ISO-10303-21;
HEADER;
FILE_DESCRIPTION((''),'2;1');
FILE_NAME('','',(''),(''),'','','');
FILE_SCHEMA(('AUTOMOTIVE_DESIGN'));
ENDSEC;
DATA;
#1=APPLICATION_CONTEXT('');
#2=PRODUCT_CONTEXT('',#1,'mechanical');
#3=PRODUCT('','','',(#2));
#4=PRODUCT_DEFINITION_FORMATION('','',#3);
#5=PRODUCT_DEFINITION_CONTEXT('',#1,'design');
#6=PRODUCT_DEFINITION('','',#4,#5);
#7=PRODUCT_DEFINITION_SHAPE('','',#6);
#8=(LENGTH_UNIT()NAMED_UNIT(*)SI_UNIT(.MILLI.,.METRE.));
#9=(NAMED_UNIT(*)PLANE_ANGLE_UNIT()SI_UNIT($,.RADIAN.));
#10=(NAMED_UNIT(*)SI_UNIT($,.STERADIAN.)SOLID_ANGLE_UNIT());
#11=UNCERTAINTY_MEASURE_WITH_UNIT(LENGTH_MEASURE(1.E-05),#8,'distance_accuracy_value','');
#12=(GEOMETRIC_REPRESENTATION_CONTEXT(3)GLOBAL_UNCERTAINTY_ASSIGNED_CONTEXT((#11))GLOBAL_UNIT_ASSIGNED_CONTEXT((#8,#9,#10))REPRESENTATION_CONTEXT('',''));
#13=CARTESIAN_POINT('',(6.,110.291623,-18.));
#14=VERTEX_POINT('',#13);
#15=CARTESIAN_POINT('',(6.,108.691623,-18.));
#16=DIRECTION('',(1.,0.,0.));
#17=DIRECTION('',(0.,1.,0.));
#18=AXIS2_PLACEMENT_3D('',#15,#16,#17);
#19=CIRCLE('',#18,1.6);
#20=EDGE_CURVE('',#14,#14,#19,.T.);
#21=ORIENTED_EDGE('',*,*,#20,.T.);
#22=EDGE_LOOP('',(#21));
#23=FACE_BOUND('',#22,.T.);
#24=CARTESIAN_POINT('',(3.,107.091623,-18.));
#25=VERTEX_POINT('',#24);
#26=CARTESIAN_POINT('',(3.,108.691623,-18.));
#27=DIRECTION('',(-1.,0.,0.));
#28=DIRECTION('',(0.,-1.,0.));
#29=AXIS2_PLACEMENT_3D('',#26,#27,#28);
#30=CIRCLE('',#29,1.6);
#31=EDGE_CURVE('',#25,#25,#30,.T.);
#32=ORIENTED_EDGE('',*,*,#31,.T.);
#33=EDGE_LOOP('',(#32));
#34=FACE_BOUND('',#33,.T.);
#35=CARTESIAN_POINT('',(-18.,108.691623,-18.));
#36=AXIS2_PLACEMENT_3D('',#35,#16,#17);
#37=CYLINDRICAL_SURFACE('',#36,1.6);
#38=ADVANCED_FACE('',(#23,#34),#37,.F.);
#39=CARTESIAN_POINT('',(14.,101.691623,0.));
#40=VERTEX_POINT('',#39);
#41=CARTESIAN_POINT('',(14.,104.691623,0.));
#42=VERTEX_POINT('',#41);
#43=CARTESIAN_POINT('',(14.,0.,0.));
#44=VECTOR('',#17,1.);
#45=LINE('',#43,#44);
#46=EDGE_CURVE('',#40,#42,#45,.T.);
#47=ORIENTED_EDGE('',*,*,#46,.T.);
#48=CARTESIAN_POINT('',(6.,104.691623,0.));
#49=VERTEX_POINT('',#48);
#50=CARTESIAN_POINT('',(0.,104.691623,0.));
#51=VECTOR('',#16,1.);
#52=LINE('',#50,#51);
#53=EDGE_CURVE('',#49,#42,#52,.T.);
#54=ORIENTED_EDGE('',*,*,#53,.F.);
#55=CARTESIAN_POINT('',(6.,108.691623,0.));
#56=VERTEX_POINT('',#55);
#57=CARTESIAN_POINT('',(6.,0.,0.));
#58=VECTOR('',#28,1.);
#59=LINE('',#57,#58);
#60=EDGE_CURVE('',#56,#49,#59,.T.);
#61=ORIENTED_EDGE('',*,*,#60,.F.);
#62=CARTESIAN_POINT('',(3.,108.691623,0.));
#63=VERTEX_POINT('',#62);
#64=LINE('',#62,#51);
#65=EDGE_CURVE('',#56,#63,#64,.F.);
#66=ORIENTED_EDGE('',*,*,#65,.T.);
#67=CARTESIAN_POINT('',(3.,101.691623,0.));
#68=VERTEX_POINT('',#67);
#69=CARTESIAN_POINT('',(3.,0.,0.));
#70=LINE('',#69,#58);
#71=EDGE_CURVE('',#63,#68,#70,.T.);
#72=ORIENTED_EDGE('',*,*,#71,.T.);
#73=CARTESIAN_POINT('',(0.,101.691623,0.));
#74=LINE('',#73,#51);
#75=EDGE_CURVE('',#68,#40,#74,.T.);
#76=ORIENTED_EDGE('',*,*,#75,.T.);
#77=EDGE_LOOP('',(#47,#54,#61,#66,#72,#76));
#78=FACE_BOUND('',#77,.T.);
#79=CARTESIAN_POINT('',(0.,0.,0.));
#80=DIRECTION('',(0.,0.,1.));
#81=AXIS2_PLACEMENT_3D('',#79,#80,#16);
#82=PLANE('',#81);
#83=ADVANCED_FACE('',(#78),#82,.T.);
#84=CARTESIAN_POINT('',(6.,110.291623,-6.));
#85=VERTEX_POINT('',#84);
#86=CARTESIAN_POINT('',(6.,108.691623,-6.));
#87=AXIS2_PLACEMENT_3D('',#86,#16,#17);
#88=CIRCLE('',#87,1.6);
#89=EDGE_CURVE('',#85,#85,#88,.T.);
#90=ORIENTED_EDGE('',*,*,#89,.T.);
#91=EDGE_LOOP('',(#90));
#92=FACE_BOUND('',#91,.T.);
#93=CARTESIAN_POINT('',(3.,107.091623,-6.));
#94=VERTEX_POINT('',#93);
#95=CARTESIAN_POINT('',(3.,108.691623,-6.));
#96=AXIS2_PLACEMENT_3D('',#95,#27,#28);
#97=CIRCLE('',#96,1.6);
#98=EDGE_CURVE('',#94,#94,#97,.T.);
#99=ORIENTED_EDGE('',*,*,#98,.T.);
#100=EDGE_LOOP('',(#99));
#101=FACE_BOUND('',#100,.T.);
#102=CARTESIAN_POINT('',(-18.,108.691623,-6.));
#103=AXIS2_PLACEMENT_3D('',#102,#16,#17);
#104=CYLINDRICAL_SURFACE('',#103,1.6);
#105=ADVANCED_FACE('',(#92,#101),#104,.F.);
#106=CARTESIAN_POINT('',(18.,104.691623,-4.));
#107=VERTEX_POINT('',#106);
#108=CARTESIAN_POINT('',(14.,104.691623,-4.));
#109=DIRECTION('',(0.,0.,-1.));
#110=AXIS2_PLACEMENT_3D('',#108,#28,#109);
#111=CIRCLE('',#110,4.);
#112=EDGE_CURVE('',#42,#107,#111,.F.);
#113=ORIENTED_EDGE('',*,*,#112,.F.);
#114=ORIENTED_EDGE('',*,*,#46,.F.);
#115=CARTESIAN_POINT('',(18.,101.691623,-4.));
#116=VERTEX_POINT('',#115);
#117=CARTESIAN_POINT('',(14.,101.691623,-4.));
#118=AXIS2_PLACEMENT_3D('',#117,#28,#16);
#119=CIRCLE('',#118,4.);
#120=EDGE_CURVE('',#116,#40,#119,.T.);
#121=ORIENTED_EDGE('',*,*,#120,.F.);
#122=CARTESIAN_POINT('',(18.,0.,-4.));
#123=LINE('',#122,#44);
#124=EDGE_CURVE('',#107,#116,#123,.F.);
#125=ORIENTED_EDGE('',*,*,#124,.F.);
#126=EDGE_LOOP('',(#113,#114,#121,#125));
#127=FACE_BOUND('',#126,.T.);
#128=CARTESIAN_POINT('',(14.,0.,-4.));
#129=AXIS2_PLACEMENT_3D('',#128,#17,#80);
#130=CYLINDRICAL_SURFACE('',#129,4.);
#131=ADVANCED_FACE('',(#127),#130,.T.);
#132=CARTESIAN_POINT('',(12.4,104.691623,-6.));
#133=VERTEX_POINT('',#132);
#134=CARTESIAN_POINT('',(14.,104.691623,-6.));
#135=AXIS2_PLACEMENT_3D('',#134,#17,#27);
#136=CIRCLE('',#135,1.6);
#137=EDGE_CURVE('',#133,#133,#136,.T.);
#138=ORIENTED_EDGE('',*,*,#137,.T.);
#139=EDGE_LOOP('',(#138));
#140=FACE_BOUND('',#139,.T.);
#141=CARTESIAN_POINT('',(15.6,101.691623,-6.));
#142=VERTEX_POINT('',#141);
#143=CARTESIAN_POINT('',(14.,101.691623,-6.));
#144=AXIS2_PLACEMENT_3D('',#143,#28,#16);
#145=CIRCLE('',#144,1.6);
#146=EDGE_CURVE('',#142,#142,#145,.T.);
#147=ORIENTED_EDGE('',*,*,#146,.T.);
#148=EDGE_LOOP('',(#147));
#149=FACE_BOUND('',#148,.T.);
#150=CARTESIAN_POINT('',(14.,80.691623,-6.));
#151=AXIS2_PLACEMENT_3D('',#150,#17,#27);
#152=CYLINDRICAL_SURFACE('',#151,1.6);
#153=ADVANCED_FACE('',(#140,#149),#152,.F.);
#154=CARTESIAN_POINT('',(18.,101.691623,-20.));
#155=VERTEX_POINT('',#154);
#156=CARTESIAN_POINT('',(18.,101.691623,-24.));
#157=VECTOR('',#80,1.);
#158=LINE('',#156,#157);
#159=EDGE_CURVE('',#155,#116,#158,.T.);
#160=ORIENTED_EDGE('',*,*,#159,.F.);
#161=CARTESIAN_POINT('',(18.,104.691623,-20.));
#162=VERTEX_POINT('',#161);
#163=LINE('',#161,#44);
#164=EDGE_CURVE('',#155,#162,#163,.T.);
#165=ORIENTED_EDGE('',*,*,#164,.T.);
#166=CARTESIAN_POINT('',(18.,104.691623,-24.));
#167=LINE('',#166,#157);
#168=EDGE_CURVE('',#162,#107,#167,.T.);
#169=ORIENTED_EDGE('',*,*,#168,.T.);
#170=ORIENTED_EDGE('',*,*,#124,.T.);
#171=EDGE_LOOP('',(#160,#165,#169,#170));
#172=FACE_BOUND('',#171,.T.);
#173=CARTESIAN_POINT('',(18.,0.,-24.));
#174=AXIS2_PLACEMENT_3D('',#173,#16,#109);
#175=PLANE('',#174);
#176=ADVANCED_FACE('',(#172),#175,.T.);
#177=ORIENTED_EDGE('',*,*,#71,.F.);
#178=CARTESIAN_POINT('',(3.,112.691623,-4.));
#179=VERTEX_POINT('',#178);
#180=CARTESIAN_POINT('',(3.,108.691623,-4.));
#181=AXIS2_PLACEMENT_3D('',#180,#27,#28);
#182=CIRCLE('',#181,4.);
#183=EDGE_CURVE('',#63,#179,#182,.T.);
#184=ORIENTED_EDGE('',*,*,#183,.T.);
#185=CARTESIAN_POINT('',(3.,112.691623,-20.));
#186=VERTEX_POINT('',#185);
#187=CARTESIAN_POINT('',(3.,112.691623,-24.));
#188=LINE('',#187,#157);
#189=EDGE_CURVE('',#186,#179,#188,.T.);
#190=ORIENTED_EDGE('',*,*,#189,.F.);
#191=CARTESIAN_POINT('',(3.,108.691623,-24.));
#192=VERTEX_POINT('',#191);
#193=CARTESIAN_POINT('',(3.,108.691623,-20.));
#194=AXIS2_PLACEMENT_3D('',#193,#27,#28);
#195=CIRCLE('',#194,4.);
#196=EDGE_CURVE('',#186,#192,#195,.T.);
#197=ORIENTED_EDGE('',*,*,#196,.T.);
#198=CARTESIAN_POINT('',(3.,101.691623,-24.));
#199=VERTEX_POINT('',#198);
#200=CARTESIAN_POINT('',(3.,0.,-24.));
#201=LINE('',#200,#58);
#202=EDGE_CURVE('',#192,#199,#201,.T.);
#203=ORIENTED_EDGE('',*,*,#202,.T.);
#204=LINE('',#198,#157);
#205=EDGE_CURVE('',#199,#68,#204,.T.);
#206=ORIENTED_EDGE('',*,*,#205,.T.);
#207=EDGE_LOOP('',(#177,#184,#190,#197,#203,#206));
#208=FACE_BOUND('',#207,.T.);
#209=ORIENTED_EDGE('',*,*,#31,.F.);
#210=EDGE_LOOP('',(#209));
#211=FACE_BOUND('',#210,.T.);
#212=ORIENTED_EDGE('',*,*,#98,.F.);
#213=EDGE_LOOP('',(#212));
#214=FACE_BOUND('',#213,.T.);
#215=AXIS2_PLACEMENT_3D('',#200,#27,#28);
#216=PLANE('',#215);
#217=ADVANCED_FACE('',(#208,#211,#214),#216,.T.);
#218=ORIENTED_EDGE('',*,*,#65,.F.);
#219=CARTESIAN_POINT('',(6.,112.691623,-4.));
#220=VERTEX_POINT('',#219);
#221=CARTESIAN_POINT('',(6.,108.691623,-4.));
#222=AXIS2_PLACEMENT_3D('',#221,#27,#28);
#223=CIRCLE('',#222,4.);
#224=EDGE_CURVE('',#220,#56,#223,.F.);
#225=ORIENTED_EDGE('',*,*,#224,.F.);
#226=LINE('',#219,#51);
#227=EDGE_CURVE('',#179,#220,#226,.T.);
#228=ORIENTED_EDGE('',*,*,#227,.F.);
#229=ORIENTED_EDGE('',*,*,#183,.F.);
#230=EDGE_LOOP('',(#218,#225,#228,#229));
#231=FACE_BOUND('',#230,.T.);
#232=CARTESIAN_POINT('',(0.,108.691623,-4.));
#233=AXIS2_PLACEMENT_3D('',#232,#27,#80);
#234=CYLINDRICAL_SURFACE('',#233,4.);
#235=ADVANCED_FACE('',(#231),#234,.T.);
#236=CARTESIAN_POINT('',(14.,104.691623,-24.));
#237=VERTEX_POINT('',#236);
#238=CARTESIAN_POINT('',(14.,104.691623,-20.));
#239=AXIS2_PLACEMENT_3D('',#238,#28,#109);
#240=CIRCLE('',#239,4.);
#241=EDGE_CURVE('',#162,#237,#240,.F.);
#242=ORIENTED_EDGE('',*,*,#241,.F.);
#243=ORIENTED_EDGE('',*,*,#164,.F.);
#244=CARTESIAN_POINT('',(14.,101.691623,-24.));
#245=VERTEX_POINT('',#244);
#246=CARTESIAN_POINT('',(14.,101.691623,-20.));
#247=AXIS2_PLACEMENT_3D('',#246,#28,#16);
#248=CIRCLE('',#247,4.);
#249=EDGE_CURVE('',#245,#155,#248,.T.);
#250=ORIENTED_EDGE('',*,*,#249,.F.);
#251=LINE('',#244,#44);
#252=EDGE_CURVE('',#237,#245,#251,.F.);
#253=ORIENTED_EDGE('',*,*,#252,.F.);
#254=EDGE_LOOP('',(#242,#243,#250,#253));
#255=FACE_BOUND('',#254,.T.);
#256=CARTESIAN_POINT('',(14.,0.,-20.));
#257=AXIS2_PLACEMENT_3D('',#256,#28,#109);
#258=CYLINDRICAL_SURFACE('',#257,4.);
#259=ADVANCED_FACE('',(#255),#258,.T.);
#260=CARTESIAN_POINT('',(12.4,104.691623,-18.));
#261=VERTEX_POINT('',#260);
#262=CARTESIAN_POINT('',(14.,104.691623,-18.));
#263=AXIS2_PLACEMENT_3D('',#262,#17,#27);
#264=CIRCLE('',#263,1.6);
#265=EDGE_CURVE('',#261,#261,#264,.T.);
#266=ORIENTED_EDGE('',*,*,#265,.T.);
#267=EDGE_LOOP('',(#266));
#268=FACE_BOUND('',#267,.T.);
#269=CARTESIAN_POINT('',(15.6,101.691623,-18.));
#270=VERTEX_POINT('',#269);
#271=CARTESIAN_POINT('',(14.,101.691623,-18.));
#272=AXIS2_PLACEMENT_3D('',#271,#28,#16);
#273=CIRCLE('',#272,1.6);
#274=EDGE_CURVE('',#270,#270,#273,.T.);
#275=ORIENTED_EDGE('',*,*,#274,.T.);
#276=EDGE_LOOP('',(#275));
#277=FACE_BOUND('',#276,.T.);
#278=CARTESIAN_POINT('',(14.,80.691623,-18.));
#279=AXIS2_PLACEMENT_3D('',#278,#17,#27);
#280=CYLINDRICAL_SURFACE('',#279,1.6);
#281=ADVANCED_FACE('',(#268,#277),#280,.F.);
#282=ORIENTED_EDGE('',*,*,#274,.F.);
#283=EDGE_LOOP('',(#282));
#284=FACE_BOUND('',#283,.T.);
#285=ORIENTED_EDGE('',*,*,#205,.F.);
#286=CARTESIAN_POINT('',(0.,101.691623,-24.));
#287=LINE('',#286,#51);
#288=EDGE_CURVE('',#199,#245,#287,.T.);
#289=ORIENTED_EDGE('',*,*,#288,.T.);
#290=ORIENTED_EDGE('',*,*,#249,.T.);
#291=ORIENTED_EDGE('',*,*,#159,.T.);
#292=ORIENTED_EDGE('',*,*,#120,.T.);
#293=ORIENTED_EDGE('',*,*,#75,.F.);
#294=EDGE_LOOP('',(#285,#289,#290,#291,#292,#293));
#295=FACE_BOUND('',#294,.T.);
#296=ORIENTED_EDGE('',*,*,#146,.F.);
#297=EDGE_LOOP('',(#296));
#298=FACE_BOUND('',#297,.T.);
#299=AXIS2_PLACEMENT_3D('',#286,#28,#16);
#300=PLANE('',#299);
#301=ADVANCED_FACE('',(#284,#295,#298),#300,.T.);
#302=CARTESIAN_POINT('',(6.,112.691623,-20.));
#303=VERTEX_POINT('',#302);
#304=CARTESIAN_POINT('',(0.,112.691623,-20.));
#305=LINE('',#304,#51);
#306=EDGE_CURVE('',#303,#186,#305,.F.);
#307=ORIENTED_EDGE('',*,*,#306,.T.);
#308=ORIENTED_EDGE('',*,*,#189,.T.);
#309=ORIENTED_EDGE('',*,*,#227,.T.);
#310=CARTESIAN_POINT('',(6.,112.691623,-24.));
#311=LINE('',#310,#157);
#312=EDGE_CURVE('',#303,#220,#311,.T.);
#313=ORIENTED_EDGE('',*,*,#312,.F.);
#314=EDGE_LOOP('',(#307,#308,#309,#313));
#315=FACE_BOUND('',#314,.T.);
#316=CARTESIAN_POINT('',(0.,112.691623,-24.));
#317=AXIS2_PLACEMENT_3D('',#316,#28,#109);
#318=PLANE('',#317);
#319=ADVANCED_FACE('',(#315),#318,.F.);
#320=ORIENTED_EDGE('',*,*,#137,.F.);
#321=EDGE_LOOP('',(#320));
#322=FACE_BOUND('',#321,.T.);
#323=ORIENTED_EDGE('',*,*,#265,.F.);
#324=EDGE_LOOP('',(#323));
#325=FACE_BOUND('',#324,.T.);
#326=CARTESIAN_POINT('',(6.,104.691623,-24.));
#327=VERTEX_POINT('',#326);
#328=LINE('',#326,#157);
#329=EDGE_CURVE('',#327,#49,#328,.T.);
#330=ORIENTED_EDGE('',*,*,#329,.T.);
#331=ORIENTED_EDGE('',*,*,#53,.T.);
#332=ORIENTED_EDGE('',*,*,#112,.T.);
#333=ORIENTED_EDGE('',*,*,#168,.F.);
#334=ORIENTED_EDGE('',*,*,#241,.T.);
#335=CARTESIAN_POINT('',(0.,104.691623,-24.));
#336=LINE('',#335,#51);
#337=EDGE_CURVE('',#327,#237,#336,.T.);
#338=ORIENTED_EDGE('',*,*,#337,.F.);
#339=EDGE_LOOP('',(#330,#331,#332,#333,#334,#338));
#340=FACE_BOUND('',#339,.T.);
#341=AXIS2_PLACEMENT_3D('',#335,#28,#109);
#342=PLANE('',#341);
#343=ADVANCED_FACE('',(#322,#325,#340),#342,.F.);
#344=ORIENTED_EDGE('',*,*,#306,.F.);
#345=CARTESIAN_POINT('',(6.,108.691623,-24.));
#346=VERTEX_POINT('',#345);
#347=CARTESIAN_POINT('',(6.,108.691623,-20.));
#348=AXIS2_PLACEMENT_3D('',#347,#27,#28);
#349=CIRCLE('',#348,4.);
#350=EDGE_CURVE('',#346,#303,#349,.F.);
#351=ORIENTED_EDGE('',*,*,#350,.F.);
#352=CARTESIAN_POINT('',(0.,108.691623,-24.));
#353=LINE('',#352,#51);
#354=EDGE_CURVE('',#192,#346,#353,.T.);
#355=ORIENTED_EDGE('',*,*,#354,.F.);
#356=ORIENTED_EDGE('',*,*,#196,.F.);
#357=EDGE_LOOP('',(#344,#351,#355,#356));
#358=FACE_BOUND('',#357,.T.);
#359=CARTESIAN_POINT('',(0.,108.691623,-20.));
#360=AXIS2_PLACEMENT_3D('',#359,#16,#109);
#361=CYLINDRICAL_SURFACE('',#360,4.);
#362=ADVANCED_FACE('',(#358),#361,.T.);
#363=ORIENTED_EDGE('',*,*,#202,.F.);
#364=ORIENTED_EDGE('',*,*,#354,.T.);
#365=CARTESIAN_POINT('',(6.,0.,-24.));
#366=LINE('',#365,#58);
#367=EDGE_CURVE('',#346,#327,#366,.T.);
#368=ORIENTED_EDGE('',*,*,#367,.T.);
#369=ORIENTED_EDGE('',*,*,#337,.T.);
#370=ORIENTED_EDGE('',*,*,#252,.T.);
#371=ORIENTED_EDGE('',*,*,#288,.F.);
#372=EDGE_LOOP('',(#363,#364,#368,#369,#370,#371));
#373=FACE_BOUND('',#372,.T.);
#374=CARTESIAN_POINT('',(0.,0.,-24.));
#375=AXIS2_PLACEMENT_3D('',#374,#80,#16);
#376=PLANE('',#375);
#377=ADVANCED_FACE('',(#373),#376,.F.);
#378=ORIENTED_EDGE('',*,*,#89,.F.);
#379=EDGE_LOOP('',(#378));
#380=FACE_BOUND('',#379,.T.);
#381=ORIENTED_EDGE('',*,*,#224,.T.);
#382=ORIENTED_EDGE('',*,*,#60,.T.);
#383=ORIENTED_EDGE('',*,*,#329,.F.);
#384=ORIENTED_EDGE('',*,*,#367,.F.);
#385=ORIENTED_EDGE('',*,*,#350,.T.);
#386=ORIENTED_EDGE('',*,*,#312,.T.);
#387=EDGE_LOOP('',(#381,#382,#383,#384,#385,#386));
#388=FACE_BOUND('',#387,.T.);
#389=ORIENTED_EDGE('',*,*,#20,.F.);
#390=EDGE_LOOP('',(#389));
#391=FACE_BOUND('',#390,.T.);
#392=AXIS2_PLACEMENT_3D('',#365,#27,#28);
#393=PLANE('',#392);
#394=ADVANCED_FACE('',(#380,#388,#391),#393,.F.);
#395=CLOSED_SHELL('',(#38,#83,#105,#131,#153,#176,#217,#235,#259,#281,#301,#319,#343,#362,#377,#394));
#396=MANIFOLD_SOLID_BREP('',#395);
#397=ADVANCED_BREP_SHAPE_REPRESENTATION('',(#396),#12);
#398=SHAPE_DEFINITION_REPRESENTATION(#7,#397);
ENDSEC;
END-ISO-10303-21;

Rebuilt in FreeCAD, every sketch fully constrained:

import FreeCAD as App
import Part
import Sketcher

V = App.Vector
Q = App.Units.Quantity


def edges_at(feature, points):
    """Names of the edges that pass closest to the given points."""
    edges = feature.Shape.Edges
    near = lambda p: min(range(len(edges)), key=lambda i: edges[i].distToShape(Part.Vertex(*p))[0])
    return sorted({f"Edge{near(p) + 1}" for p in points})


def add_polygon(sketch, points):
    """Adds a closed chain of lines whose ends are joined by coincident constraints."""
    first, n = sketch.GeometryCount, len(points)
    for a, b in zip(points, points[1:] + points[:1]):
        sketch.addGeometry(Part.LineSegment(App.Vector(*a, 0), App.Vector(*b, 0)), False)
    for i in range(n):
        sketch.addConstraint(Sketcher.Constraint("Coincident", first + i, 2, first + (i + 1) % n, 1))

doc = App.newDocument("Part")
body = doc.addObject("PartDesign::Body", "Body")

# Sketch on XY plane
sketch1 = body.newObject("Sketcher::SketchObject", "Sketch")
sketch1.AttachmentSupport = (doc.getObject("XY_Plane"), [""])
sketch1.MapMode = "FlatFace"
add_polygon(sketch1, [(6, 112.7), (3, 112.7), (3, 101.7), (18, 101.7), (18, 104.7), (6, 104.7)])  # lines 0-5
sketch1.addConstraint([
    Sketcher.Constraint("Horizontal", 0),
    Sketcher.Constraint("Vertical", 1),
    Sketcher.Constraint("Horizontal", 2),
    Sketcher.Constraint("Vertical", 3),
    Sketcher.Constraint("Horizontal", 4),
    Sketcher.Constraint("Vertical", 5),
    Sketcher.Constraint("Equal", 0, 3),
    Sketcher.Constraint("DistanceX", 0, 2, 0, 1, Q("3 mm")),
    Sketcher.Constraint("DistanceX", 2, 1, 2, 2, Q("15 mm")),
    Sketcher.Constraint("DistanceY", 1, 2, 1, 1, Q("11 mm")),
    Sketcher.Constraint("DistanceX", -1, 1, 0, 2, Q("3 mm")),
    Sketcher.Constraint("DistanceY", -1, 1, 0, 2, Q("112.691623 mm")),
])
pad1 = body.newObject("PartDesign::Pad", "Pad")
pad1.Profile = sketch1
pad1.Length = 24
pad1.Reversed = True

# Sketch on YZ plane
sketch2 = body.newObject("Sketcher::SketchObject", "Sketch001")
sketch2.AttachmentSupport = (doc.getObject("YZ_Plane"), [""])
sketch2.MapMode = "FlatFace"
sketch2.AttachmentOffset = App.Placement(V(0, 0, 6), App.Rotation())
sketch2.addGeometry([
    Part.Circle(V(108.7, -6, 0), V(0, 0, 1), 1.6),
    Part.Circle(V(108.7, -18, 0), V(0, 0, 1), 1.6),
], False)
sketch2.addConstraint([
    Sketcher.Constraint("Equal", 0, 1),
    Sketcher.Constraint("Vertical", 0, 3, 1, 3),
    Sketcher.Constraint("Diameter", 0, Q("3.2 mm")),
    Sketcher.Constraint("DistanceY", 0, 3, -1, 1, Q("6 mm")),
    Sketcher.Constraint("DistanceY", 1, 3, -1, 1, Q("18 mm")),
    Sketcher.Constraint("DistanceX", -1, 1, 0, 3, Q("108.691623 mm")),
])
pocket1 = body.newObject("PartDesign::Pocket", "Pocket")
pocket1.Profile = sketch2
pocket1.Length = 24

# Sketch on XZ plane
sketch3 = body.newObject("Sketcher::SketchObject", "Sketch002")
sketch3.AttachmentSupport = (doc.getObject("XZ_Plane"), [""])
sketch3.MapMode = "FlatFace"
sketch3.AttachmentOffset = App.Placement(V(0, 0, -104.691623), App.Rotation())
sketch3.addGeometry([
    Part.Circle(V(14, -6, 0), V(0, 0, 1), 1.6),
    Part.Circle(V(14, -18, 0), V(0, 0, 1), 1.6),
], False)
sketch3.addConstraint([
    Sketcher.Constraint("Equal", 0, 1),
    Sketcher.Constraint("Vertical", 0, 3, 1, 3),
    Sketcher.Constraint("Diameter", 0, Q("3.2 mm")),
    Sketcher.Constraint("DistanceX", -1, 1, 0, 3, Q("14 mm")),
    Sketcher.Constraint("DistanceY", 0, 3, -1, 1, Q("6 mm")),
    Sketcher.Constraint("DistanceY", 1, 3, -1, 1, Q("18 mm")),
])
pocket2 = body.newObject("PartDesign::Pocket", "Pocket001")
pocket2.Profile = sketch3
pocket2.Length = 24
pocket2.Reversed = True
doc.recompute()

fillet = body.newObject("PartDesign::Fillet", "Fillet")
fillet.Base = (pocket2, edges_at(pocket2, [
    (4.5, 112.692, -24),
    (4.5, 112.692, 0),
    (18, 103.192, -24),
    (18, 103.192, 0),
]))
fillet.Radius = 4

doc.recompute()
